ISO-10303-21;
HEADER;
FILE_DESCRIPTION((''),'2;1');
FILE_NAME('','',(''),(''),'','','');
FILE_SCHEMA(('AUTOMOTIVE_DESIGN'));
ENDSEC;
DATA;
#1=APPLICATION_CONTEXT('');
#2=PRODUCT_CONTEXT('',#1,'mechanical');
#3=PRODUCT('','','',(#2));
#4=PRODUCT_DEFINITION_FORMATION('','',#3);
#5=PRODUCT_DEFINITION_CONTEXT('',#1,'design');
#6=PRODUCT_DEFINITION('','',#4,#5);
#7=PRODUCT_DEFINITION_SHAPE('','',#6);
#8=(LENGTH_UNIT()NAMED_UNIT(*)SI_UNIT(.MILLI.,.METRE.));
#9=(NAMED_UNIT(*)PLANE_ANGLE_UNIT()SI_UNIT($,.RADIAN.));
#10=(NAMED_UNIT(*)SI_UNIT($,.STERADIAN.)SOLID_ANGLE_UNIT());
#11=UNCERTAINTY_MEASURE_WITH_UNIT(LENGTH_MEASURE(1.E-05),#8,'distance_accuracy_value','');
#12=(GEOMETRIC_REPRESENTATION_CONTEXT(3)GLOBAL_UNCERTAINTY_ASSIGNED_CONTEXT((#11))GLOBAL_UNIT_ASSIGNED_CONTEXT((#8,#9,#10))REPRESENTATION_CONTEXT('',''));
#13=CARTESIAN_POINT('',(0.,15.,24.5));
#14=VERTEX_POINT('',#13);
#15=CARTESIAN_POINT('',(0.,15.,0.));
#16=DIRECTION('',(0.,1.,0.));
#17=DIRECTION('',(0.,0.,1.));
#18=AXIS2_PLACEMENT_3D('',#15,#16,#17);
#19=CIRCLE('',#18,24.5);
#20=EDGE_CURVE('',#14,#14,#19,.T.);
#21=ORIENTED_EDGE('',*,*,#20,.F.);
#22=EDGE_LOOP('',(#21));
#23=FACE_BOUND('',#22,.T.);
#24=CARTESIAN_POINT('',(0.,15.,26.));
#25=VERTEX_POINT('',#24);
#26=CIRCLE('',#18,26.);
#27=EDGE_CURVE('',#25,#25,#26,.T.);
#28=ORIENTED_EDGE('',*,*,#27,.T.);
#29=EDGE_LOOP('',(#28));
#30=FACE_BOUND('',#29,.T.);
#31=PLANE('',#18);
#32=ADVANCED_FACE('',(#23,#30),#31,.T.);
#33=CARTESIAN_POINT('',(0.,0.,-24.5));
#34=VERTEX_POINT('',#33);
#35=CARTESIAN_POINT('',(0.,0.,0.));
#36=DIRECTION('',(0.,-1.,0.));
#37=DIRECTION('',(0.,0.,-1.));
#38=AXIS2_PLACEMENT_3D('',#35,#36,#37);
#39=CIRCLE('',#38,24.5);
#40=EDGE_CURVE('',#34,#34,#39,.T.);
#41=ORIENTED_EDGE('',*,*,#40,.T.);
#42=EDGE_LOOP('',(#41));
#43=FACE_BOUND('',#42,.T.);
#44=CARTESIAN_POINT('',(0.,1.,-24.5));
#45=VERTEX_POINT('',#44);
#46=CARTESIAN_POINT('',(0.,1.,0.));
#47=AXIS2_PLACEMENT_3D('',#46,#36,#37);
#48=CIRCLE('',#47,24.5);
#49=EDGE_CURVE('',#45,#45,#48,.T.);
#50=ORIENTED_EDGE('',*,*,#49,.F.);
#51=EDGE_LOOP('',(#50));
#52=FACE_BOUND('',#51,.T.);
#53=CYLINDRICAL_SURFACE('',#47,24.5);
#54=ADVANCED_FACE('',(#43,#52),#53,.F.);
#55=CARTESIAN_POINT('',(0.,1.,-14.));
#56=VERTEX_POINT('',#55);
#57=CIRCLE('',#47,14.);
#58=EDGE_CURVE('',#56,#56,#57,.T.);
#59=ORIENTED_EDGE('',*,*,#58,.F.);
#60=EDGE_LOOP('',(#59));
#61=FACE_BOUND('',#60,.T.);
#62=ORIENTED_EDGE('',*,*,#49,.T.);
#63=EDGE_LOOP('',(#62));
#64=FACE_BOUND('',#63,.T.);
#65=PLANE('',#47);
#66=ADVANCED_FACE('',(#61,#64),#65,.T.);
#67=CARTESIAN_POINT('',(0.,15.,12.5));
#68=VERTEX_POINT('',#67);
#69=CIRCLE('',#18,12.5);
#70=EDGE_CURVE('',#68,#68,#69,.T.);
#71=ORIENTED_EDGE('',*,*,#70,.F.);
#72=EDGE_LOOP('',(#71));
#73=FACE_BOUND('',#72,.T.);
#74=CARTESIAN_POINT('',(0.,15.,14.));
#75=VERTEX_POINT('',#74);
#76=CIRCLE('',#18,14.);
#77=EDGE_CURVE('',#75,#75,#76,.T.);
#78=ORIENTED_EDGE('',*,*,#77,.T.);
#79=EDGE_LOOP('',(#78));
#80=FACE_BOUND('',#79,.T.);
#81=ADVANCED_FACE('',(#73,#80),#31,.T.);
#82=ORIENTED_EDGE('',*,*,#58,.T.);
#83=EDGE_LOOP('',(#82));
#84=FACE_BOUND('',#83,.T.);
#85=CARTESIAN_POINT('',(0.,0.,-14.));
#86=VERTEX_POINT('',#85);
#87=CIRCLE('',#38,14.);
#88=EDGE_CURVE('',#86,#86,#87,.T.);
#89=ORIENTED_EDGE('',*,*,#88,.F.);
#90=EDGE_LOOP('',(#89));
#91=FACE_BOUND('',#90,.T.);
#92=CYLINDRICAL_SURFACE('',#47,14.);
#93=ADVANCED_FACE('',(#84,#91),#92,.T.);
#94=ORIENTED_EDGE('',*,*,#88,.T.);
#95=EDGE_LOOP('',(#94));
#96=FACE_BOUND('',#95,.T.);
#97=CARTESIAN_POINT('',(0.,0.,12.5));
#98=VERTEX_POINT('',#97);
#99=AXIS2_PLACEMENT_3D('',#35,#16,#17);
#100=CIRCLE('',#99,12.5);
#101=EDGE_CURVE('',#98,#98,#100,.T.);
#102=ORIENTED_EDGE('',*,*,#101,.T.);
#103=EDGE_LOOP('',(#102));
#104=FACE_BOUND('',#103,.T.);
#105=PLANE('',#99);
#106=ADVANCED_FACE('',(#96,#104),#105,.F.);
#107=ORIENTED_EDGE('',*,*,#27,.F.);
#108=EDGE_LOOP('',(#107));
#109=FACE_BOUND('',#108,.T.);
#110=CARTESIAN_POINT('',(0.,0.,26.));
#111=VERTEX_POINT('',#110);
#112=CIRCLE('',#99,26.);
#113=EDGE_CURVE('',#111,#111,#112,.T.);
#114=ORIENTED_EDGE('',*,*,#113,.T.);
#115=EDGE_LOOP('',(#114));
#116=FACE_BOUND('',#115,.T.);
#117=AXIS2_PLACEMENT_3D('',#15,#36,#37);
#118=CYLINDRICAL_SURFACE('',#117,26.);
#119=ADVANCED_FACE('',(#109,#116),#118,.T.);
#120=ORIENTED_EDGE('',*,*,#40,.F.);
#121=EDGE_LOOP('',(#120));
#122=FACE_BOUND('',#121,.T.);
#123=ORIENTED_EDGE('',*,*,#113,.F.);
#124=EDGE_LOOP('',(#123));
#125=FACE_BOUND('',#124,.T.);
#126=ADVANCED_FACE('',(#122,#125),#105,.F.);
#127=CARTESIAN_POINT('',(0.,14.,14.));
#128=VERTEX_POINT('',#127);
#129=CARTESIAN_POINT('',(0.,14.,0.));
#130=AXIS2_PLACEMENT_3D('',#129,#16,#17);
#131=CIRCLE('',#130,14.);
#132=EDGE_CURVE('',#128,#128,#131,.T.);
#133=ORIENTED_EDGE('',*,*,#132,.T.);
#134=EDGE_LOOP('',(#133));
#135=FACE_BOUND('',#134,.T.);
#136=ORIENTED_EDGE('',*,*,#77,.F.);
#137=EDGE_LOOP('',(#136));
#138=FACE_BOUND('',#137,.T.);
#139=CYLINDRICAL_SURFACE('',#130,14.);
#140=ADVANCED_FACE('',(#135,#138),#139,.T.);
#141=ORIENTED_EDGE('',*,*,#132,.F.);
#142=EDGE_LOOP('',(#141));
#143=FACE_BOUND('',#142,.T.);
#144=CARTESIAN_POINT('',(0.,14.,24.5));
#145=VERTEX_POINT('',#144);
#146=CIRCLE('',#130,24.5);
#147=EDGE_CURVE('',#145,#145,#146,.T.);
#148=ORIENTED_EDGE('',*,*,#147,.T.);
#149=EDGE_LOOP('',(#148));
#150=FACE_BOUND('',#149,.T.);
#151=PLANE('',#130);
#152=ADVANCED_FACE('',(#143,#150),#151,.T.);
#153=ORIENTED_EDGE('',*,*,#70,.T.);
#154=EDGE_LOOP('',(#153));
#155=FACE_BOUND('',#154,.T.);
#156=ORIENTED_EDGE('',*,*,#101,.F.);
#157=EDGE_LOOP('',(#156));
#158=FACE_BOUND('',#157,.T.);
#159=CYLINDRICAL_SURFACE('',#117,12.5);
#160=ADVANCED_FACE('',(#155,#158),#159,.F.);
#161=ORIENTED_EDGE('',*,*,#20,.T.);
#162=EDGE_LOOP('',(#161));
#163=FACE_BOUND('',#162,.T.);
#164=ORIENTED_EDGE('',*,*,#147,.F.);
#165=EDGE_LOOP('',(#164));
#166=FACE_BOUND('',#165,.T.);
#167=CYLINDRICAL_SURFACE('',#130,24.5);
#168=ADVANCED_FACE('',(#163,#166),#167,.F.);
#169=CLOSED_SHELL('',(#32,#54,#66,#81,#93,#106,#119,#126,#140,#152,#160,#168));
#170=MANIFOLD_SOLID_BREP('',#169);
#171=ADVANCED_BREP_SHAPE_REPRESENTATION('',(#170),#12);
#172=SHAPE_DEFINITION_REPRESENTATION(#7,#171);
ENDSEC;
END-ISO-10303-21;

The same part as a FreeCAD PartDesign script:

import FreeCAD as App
import Part
import Sketcher

V = App.Vector
Q = App.Units.Quantity

doc = App.newDocument("Part")
body = doc.addObject("PartDesign::Body", "Body")

# Sketch on XZ plane
sketch1 = doc.addObject("Sketcher::SketchObject", "Sketch")
body.addObject(sketch1)
sketch1.AttachmentSupport = (doc.XZ_Plane, [""])
sketch1.MapMode = "FlatFace"
sketch1.addGeometry([
    Part.Circle(V(0, 0, 0), V(0, 0, 1), 26),
    Part.Circle(V(0, 0, 0), V(0, 0, 1), 12),
], False)
sketch1.addConstraint([
    Sketcher.Constraint("Coincident", 0, 3, -1, 1),
    Sketcher.Constraint("Coincident", 1, 3, -1, 1),
    Sketcher.Constraint("Diameter", 0, Q("52 mm")),
    Sketcher.Constraint("Diameter", 1, Q("25 mm")),
])
pad1 = doc.addObject("PartDesign::Pad", "Pad")
body.addObject(pad1)
pad1.Profile = sketch1
pad1.Length = 15
pad1.Reversed = True

# Sketch on XZ plane
sketch2 = doc.addObject("Sketcher::SketchObject", "Sketch001")
body.addObject(sketch2)
sketch2.AttachmentSupport = (doc.XZ_Plane, [""])
sketch2.MapMode = "FlatFace"
sketch2.AttachmentOffset = App.Placement(V(0, 0, -15), App.Rotation())
sketch2.addGeometry([
    Part.Circle(V(0, 0, 0), V(0, 0, 1), 24),
    Part.Circle(V(0, 0, 0), V(0, 0, 1), 14),
], False)
sketch2.addConstraint([
    Sketcher.Constraint("Coincident", 0, 3, -1, 1),
    Sketcher.Constraint("Coincident", 1, 3, -1, 1),
    Sketcher.Constraint("Diameter", 0, Q("49 mm")),
    Sketcher.Constraint("Diameter", 1, Q("28 mm")),
])
pocket1 = doc.addObject("PartDesign::Pocket", "Pocket")
body.addObject(pocket1)
pocket1.Profile = sketch2
pocket1.Length = 1
pocket1.Reversed = True

# Sketch on XZ plane
sketch3 = doc.addObject("Sketcher::SketchObject", "Sketch002")
body.addObject(sketch3)
sketch3.AttachmentSupport = (doc.XZ_Plane, [""])
sketch3.MapMode = "FlatFace"
sketch3.AttachmentOffset = App.Placement(V(0, 0, -1), App.Rotation())
sketch3.addGeometry([
    Part.Circle(V(0, 0, 0), V(0, 0, 1), 24),
    Part.Circle(V(0, 0, 0), V(0, 0, 1), 14),
], False)
sketch3.addConstraint([
    Sketcher.Constraint("Coincident", 0, 3, -1, 1),
    Sketcher.Constraint("Coincident", 1, 3, -1, 1),
    Sketcher.Constraint("Diameter", 0, Q("49 mm")),
    Sketcher.Constraint("Diameter", 1, Q("28 mm")),
])
pocket2 = doc.addObject("PartDesign::Pocket", "Pocket001")
body.addObject(pocket2)
pocket2.Profile = sketch3
pocket2.Length = 1
pocket2.Reversed = True

doc.recompute()
